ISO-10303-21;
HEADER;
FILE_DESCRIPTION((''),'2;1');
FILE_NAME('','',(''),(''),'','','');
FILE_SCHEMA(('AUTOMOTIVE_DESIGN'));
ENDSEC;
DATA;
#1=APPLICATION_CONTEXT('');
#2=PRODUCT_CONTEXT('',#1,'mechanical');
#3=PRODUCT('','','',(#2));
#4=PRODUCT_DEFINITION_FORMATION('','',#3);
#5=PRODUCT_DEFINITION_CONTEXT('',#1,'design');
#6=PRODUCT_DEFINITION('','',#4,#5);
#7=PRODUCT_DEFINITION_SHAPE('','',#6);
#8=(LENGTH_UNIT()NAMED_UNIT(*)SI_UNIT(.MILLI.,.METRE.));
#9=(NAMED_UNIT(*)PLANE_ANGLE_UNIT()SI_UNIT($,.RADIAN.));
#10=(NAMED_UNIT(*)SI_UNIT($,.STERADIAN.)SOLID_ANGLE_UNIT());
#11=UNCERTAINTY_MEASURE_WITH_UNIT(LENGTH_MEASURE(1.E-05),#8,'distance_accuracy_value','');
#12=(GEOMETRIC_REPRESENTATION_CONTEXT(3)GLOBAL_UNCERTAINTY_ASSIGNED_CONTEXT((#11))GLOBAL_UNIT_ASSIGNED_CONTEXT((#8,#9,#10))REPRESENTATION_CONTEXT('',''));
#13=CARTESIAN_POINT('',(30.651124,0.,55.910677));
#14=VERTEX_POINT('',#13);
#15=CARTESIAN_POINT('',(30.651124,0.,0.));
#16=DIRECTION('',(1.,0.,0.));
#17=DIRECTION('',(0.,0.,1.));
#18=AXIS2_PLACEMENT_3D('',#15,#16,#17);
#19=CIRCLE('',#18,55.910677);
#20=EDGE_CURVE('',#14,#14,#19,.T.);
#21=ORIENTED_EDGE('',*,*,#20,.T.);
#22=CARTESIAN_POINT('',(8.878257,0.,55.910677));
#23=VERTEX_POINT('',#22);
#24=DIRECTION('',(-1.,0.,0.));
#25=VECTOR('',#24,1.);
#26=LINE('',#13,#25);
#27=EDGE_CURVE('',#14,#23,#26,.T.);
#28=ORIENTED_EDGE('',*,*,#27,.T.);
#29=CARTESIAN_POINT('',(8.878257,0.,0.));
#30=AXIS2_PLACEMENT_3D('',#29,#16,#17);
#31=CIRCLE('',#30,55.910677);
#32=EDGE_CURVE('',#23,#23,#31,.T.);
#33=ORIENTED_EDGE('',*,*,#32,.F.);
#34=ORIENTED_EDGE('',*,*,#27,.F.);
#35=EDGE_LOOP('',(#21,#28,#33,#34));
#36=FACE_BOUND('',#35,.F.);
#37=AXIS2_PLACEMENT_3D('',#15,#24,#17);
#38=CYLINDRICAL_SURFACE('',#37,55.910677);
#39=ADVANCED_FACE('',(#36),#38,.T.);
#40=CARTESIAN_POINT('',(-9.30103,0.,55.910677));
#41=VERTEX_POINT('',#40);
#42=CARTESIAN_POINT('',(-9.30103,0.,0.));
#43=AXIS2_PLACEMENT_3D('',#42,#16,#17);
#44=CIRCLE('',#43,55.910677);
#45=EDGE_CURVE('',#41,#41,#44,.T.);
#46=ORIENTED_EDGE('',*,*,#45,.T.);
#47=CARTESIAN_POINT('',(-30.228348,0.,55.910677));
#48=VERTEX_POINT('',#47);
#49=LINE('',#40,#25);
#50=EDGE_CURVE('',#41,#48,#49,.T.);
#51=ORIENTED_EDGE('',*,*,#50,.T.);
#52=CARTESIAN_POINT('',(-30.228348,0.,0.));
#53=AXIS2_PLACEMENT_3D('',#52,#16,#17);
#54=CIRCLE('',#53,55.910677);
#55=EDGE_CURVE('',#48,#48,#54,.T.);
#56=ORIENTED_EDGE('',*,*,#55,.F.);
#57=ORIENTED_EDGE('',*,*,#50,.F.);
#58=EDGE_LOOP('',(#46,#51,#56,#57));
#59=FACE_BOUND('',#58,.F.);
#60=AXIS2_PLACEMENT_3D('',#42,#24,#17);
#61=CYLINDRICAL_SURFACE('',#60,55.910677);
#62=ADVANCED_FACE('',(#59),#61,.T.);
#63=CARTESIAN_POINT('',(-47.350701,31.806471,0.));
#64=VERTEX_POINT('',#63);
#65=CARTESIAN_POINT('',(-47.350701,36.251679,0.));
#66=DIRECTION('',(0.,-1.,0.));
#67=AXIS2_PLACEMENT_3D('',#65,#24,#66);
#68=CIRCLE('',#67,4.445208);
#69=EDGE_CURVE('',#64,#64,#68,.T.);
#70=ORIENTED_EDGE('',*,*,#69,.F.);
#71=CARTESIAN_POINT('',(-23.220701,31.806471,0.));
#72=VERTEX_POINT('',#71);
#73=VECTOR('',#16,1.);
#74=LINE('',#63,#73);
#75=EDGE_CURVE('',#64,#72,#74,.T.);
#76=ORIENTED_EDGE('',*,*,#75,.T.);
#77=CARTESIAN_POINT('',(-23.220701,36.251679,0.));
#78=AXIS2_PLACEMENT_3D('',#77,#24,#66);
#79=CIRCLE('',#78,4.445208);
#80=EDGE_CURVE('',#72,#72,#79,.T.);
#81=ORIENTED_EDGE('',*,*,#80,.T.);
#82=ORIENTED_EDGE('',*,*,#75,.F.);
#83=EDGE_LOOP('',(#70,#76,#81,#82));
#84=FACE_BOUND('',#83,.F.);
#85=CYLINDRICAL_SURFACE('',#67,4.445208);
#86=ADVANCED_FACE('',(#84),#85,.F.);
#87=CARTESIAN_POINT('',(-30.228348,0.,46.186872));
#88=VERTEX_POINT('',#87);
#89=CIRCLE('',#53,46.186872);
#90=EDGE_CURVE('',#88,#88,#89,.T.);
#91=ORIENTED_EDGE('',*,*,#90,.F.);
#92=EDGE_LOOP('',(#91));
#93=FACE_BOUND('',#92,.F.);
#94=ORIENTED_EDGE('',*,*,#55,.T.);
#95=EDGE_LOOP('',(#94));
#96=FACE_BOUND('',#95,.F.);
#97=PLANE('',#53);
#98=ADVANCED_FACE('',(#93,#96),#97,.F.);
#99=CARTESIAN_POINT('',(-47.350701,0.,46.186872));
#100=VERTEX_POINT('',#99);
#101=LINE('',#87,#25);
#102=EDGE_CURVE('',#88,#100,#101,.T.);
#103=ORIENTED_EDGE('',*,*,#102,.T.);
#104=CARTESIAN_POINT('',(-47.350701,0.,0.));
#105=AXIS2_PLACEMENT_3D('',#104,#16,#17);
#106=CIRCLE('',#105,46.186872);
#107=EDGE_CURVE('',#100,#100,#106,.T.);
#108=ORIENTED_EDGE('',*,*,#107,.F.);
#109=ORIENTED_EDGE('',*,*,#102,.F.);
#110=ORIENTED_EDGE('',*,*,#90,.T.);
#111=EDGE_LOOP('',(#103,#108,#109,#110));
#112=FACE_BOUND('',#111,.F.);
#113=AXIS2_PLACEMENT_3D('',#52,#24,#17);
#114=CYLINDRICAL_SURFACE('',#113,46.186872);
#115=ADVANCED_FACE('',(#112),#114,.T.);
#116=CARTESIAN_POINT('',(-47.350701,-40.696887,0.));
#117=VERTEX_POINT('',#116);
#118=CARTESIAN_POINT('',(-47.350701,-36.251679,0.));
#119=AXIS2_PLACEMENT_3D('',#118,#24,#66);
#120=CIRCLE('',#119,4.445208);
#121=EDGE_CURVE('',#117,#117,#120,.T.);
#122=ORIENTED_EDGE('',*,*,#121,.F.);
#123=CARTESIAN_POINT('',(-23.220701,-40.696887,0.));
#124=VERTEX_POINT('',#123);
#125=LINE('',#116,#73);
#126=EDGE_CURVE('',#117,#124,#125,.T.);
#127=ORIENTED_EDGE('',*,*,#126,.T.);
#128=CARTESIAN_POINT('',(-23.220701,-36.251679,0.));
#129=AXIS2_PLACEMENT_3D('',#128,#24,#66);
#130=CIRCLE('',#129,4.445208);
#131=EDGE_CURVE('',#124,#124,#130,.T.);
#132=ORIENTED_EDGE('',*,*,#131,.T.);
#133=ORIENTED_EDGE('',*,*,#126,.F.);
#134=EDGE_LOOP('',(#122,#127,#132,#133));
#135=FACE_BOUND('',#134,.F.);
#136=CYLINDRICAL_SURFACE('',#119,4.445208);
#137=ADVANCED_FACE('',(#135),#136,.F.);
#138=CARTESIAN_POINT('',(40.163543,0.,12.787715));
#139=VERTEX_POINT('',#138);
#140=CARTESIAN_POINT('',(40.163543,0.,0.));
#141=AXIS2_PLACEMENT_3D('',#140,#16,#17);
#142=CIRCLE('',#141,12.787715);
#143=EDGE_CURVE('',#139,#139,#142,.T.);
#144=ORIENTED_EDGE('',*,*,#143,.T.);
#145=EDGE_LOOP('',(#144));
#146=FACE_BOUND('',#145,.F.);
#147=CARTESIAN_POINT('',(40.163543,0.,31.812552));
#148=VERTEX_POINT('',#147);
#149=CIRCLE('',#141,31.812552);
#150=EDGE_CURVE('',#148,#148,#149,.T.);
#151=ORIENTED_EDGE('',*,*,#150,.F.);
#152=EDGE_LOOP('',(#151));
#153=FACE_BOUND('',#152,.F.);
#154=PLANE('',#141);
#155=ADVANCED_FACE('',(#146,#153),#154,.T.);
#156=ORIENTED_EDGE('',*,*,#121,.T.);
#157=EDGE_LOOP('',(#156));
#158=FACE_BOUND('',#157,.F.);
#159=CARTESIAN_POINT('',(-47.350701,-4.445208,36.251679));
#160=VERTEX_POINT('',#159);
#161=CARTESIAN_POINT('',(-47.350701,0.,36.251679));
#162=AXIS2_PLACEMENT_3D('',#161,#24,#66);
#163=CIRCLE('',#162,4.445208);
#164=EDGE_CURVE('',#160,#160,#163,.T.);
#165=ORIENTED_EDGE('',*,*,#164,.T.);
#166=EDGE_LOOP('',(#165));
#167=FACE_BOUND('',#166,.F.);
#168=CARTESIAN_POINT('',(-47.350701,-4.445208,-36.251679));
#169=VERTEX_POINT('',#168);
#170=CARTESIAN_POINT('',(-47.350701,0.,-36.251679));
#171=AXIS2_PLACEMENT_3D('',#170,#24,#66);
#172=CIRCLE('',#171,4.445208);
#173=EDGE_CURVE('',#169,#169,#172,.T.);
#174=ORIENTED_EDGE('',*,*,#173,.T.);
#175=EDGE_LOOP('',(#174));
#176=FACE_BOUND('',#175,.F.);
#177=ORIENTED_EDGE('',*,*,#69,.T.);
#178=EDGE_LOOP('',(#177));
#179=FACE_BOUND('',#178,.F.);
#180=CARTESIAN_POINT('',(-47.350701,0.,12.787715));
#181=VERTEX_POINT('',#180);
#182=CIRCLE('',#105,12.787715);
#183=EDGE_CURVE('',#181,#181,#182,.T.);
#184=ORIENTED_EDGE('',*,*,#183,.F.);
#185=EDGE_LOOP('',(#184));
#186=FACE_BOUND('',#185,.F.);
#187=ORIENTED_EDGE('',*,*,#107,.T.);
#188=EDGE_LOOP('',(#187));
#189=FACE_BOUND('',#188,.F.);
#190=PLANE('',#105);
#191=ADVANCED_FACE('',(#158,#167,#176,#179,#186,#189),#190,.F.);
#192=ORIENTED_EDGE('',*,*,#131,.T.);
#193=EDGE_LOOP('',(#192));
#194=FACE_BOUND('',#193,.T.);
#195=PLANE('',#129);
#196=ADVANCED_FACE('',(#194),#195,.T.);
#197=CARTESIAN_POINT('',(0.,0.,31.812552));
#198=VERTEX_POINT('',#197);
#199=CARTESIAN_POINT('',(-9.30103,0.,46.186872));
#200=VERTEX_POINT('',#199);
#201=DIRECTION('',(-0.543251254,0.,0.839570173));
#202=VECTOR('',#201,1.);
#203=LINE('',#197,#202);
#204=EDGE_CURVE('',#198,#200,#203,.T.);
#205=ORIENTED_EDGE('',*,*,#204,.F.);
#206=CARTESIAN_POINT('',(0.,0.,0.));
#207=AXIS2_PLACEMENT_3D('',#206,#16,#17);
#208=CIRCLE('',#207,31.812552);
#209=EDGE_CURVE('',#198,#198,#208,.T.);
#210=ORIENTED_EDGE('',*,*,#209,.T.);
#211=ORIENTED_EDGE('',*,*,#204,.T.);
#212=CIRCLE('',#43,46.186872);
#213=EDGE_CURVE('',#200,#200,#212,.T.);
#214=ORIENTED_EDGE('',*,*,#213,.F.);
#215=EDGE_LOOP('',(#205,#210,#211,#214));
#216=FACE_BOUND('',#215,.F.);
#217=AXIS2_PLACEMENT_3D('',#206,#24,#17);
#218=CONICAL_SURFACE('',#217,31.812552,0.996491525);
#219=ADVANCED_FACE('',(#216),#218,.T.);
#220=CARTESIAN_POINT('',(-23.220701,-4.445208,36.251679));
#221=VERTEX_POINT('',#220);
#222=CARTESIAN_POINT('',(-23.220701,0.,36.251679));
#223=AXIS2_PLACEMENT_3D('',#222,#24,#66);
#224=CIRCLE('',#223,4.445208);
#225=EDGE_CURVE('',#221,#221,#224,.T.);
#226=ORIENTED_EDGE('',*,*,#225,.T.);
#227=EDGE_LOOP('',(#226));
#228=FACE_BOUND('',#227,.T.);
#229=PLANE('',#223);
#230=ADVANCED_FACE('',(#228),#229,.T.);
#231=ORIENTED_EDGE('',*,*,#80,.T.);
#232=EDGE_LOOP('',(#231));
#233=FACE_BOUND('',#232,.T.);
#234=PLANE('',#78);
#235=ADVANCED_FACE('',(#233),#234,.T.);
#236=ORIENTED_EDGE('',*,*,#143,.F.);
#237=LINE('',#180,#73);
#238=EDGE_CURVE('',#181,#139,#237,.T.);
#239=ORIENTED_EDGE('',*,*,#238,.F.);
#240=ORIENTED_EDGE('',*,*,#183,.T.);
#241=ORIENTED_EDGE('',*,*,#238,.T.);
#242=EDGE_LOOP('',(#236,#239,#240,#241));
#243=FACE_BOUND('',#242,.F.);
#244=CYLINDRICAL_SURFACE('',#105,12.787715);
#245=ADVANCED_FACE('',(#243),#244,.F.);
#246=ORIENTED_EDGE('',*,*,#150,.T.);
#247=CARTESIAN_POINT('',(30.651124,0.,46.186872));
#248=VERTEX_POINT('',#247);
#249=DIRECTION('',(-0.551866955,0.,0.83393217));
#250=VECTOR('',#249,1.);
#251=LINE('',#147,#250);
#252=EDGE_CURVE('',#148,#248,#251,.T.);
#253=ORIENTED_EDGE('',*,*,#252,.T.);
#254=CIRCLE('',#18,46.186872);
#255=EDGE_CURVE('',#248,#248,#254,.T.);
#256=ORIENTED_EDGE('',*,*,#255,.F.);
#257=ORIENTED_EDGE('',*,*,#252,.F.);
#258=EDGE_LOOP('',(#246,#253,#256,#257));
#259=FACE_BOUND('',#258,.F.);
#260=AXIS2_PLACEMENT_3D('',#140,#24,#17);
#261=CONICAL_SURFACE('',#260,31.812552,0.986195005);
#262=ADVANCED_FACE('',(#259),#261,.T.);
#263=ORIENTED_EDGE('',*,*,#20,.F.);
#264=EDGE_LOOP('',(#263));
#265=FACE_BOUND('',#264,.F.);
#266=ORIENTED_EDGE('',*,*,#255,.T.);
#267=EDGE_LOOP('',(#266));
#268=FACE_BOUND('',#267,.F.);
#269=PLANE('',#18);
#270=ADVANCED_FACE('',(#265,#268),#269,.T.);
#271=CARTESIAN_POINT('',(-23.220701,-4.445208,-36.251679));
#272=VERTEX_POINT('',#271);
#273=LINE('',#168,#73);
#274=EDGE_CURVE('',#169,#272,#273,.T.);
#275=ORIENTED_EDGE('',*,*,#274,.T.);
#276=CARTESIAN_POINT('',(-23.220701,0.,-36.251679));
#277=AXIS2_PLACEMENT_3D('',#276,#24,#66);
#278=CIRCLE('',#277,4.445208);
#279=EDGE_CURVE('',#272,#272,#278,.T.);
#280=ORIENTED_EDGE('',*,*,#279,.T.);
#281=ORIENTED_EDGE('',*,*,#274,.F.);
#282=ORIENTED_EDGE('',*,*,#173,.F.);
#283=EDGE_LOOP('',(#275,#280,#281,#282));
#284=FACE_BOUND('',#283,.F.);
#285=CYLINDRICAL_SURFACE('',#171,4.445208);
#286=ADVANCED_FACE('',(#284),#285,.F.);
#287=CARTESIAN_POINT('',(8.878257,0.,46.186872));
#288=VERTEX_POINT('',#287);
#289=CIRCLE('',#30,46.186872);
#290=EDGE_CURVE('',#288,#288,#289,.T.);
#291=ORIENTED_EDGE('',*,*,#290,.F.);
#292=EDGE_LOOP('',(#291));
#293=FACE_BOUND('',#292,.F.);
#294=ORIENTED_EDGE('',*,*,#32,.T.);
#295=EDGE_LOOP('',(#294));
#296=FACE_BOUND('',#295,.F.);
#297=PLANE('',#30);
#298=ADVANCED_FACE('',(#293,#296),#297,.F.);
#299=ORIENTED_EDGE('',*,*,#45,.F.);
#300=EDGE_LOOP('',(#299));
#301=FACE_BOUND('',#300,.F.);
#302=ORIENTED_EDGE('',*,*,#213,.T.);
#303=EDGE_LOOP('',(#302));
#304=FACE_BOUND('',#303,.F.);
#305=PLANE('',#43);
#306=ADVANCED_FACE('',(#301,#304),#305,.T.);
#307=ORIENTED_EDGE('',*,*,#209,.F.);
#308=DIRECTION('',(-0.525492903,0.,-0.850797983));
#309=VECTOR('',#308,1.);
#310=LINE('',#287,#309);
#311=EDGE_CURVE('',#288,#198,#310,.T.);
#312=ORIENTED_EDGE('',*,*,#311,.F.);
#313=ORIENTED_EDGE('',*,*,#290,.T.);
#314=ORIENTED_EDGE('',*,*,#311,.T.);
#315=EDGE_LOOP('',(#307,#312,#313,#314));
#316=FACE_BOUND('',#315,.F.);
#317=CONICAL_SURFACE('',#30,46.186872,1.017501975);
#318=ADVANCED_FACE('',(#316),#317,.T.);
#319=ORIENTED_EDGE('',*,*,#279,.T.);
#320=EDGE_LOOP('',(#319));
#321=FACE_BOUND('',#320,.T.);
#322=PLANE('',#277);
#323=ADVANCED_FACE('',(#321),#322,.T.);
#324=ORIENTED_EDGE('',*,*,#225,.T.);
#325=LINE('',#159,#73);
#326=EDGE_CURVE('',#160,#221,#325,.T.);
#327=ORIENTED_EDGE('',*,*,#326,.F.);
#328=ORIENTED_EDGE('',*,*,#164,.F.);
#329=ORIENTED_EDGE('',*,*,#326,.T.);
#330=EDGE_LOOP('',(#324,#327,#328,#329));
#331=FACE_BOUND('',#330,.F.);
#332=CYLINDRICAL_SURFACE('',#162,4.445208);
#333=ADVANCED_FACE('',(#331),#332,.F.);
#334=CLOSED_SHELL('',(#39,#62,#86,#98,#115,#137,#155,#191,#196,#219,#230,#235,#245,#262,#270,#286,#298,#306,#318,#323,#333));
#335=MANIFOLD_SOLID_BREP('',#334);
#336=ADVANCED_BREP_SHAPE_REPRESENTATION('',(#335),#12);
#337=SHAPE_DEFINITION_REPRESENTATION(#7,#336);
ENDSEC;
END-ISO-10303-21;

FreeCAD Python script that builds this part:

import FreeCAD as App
import Part
import Sketcher
from FreeCAD import Vector


def add_polygon(sketch, points):
    """Adds a closed chain of lines whose ends are joined by coincident constraints."""
    first, n = sketch.GeometryCount, len(points)
    for a, b in zip(points, points[1:] + points[:1]):
        sketch.addGeometry(Part.LineSegment(App.Vector(*a, 0), App.Vector(*b, 0)), False)
    for i in range(n):
        sketch.addConstraint(Sketcher.Constraint("Coincident", first + i, 2, first + (i + 1) % n, 1))

doc = App.newDocument("Part")
params = doc.addObject("Spreadsheet::Sheet", "Params")
for row, (alias, value) in enumerate([
    ("revolution_angle", "360 deg"),
    ("pocket1_length", "0.95 in"),
], start=1):
    params.set(f"A{row}", alias)
    params.set(f"B{row}", "=" + value)
    params.setAlias(f"B{row}", alias)

body = doc.addObject("PartDesign::Body", "Body")

# Sketch on XZ plane
sketch1 = body.newObject("Sketcher::SketchObject", "Sketch")
sketch1.AttachmentSupport = (doc.getObject("XZ_Plane"), [""])
sketch1.MapMode = "FlatFace"
add_polygon(sketch1, [(-47, 46), (-47, 13), (40, 13), (40, 32), (31, 46), (31, 56), (9, 56), (9, 46), (0, 32), (-9, 46), (-9, 56), (-30, 56), (-30, 46)])  # lines 0-12
sketch1.addConstraint([
    Sketcher.Constraint("Vertical", 0),
    Sketcher.Constraint("Horizontal", 1),
    Sketcher.Constraint("Vertical", 2),
    Sketcher.Constraint("Vertical", 4),
    Sketcher.Constraint("Horizontal", 5),
    Sketcher.Constraint("Vertical", 6),
    Sketcher.Constraint("Vertical", 9),
    Sketcher.Constraint("Horizontal", 10),
    Sketcher.Constraint("Vertical", 11),
    Sketcher.Constraint("Horizontal", 12),
    Sketcher.Constraint("PointOnObject", 7, 2, -2),
    Sketcher.Constraint("Horizontal", 3, 2, 6, 2),
    Sketcher.Constraint("Horizontal", 2, 2, 7, 2),
    Sketcher.Constraint("Horizontal", 6, 2, 8, 2),
    Sketcher.Constraint("Horizontal", 5, 2, 9, 2),
    Sketcher.Constraint("Horizontal", 8, 2, 11, 2),
    Sketcher.Constraint("DistanceX", 0, 2, -1, 1, 47.350701),
    Sketcher.Constraint("DistanceX", 1, 1, 1, 2, 87.514244),
    Sketcher.Constraint("DistanceX", 5, 2, 5, 1, 21.772867),
    Sketcher.Constraint("DistanceX", 10, 2, 10, 1, 20.927318),
    Sketcher.Constraint("DistanceX", 12, 2, 12, 1, 17.122353),
    Sketcher.Constraint("DistanceY", 0, 2, 0, 1, 33.399157),
    Sketcher.Constraint("DistanceY", 2, 1, 2, 2, 19.024837),
    Sketcher.Constraint("DistanceY", 4, 1, 4, 2, 9.723805),
    Sketcher.Constraint("DistanceY", -1, 1, 2, 2, 31.812552),
    Sketcher.Constraint("DistanceX", 3, 2, 2, 2, 9.512419),
])
revolution = body.newObject("PartDesign::Revolution", "Revolution")
revolution.Profile = sketch1
revolution.ReferenceAxis = (sketch1, ["H_Axis"])
revolution.setExpression("Angle", "Params.revolution_angle")

# Sketch on YZ plane
sketch2 = body.newObject("Sketcher::SketchObject", "Sketch001")
sketch2.AttachmentSupport = (doc.getObject("YZ_Plane"), [""])
sketch2.MapMode = "FlatFace"
sketch2.AttachmentOffset = App.Placement(Vector(0, 0, -47.350701), App.Rotation())
sketch2.addGeometry([
    Part.Circle(Vector(0, 36.3, 0), Vector(0, 0, 1), 4.4),
    Part.Circle(Vector(-36.3, 0, 0), Vector(0, 0, 1), 4.4),
    Part.Circle(Vector(0, -36.3, 0), Vector(0, 0, 1), 4.4),
    Part.Circle(Vector(36.3, 0, 0), Vector(0, 0, 1), 4.4),
], False)
sketch2.addConstraint([
    Sketcher.Constraint("Equal", 0, 1),
    Sketcher.Constraint("Equal", 1, 2),
    Sketcher.Constraint("Equal", 2, 3),
    Sketcher.Constraint("Symmetric", 0, 3, 2, 3, -1, 1),
    Sketcher.Constraint("Symmetric", 1, 3, 3, 3, -1, 1),
    Sketcher.Constraint("PointOnObject", 0, 3, -2),
    Sketcher.Constraint("PointOnObject", 1, 3, -1),
    Sketcher.Constraint("Diameter", 0, 8.890416),
    Sketcher.Constraint("DistanceY", -1, 1, 0, 3, 36.251679),
    Sketcher.Constraint("DistanceX", 1, 3, -1, 1, 36.251679),
])
pocket1 = body.newObject("PartDesign::Pocket", "Pocket")
pocket1.Profile = sketch2
pocket1.setExpression("Length", "Params.pocket1_length")
pocket1.Reversed = True

doc.recompute()
